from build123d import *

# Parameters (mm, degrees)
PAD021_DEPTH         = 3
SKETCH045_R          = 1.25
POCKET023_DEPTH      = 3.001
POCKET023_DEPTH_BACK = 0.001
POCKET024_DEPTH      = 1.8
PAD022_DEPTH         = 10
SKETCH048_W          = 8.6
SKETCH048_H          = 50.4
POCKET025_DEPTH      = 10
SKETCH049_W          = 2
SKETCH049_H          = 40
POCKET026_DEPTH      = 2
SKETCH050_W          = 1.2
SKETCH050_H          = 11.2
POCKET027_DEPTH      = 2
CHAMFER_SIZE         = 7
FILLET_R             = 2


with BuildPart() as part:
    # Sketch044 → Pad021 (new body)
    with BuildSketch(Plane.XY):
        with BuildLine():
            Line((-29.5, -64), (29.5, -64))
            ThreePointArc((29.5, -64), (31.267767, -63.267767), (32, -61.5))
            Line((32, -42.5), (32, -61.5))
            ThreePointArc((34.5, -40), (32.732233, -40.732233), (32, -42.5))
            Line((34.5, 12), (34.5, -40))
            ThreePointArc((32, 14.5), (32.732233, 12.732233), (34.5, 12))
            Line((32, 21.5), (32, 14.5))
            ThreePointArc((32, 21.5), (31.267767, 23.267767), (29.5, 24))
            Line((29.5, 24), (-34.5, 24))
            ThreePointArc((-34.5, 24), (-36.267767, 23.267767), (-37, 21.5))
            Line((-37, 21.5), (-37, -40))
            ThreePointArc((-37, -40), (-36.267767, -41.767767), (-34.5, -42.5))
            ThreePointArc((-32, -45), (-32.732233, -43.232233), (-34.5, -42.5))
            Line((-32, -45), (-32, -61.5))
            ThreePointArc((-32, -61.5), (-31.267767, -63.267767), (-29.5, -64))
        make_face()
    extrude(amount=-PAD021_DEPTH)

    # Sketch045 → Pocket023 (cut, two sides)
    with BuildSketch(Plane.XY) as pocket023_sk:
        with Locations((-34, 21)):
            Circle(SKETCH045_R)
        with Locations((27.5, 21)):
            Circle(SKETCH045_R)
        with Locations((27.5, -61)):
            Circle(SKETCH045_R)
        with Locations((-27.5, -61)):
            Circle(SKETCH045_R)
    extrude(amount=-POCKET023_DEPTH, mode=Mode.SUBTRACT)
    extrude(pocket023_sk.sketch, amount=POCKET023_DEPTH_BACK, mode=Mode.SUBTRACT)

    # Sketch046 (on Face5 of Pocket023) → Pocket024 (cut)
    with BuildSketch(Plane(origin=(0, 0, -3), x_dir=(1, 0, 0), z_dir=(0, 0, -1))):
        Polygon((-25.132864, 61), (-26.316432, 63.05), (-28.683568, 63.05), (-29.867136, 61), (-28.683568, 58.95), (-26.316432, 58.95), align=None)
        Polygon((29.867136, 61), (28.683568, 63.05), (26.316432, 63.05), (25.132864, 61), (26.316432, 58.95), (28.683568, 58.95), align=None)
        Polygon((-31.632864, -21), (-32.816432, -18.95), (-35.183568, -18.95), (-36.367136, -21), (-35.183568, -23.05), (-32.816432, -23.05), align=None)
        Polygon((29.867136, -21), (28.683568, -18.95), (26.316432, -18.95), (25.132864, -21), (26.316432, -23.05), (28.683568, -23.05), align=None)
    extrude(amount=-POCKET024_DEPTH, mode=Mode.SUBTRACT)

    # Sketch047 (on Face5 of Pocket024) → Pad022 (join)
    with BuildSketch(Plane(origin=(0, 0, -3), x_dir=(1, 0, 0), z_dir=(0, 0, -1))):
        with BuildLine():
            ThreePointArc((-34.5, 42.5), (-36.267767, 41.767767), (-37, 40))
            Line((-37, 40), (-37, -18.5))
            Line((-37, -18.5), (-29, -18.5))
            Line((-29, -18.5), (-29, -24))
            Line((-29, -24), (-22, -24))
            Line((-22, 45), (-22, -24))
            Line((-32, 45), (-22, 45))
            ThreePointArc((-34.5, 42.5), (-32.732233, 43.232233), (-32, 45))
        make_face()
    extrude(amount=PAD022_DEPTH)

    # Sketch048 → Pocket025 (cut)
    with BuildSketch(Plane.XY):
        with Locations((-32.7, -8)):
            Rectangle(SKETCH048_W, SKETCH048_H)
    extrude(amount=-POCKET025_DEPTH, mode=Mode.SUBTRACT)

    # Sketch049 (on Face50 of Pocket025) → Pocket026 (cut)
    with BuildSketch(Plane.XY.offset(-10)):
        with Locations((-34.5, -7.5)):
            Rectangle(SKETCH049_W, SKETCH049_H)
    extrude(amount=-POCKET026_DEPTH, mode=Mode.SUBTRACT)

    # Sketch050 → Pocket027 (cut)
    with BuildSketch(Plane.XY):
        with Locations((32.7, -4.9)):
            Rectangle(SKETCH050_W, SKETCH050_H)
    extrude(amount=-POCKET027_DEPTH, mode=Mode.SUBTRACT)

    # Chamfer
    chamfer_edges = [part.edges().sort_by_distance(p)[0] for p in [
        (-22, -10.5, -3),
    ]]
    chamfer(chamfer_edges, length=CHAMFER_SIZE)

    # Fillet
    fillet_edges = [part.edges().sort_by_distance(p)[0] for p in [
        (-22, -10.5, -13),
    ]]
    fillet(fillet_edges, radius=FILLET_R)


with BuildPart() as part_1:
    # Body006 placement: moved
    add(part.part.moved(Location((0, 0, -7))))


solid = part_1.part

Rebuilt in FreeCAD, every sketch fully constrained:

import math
import FreeCAD as App
import Part
import Sketcher

V = App.Vector
Q = App.Units.Quantity


def edges_at(feature, points):
    """Names of the edges that pass closest to the given points."""
    edges = feature.Shape.Edges
    near = lambda p: min(range(len(edges)), key=lambda i: edges[i].distToShape(Part.Vertex(*p))[0])
    return sorted({f"Edge{near(p) + 1}" for p in points})


def add_polygon(sketch, points):
    """Adds a closed chain of lines whose ends are joined by coincident constraints."""
    first, n = sketch.GeometryCount, len(points)
    for a, b in zip(points, points[1:] + points[:1]):
        sketch.addGeometry(Part.LineSegment(App.Vector(*a, 0), App.Vector(*b, 0)), False)
    for i in range(n):
        sketch.addConstraint(Sketcher.Constraint("Coincident", first + i, 2, first + (i + 1) % n, 1))

doc = App.newDocument("Part")
body = doc.addObject("PartDesign::Body", "Body")

# Sketch on XY plane
sketch1 = doc.addObject("Sketcher::SketchObject", "Sketch")
body.addObject(sketch1)
sketch1.AttachmentSupport = (doc.XY_Plane, [""])
sketch1.MapMode = "FlatFace"
sketch1.addGeometry(Part.LineSegment(V(-29.5, -64, 0), V(29.5, -64, 0)), False)
sketch1.addGeometry(Part.ArcOfCircle(Part.Circle(V(29.5, -61.5, 0), V(0, 0, 1), 2.5), math.radians(-90), math.radians(0)), False)
sketch1.addGeometry(Part.LineSegment(V(32, -61.5, 0), V(32, -42.5, 0)), False)
sketch1.addGeometry(Part.ArcOfCircle(Part.Circle(V(34.5, -42.5, 0), V(0, 0, 1), 2.5), math.radians(90), math.radians(180)), False)
sketch1.addGeometry(Part.LineSegment(V(34.5, -40, 0), V(34.5, 12, 0)), False)
sketch1.addGeometry(Part.ArcOfCircle(Part.Circle(V(34.5, 14.5, 0), V(0, 0, 1), 2.5), math.radians(180), math.radians(270)), False)
sketch1.addGeometry(Part.LineSegment(V(32, 14.5, 0), V(32, 21.5, 0)), False)
sketch1.addGeometry(Part.ArcOfCircle(Part.Circle(V(29.5, 21.5, 0), V(0, 0, 1), 2.5), math.radians(0), math.radians(90)), False)
sketch1.addGeometry(Part.LineSegment(V(29.5, 24, 0), V(-34.5, 24, 0)), False)
sketch1.addGeometry(Part.ArcOfCircle(Part.Circle(V(-34.5, 21.5, 0), V(0, 0, 1), 2.5), math.radians(90), math.radians(180)), False)
sketch1.addGeometry(Part.LineSegment(V(-37, 21.5, 0), V(-37, -40, 0)), False)
sketch1.addGeometry(Part.ArcOfCircle(Part.Circle(V(-34.5, -40, 0), V(0, 0, 1), 2.5), math.radians(180), math.radians(270)), False)
sketch1.addGeometry(Part.ArcOfCircle(Part.Circle(V(-34.5, -45, 0), V(0, 0, 1), 2.5), math.radians(0), math.radians(90)), False)
sketch1.addGeometry(Part.LineSegment(V(-32, -45, 0), V(-32, -61.5, 0)), False)
sketch1.addGeometry(Part.ArcOfCircle(Part.Circle(V(-29.5, -61.5, 0), V(0, 0, 1), 2.5), math.radians(180), math.radians(270)), False)
sketch1.addConstraint(Sketcher.Constraint("Tangent", 0, 2, 1, 1))
sketch1.addConstraint(Sketcher.Constraint("Tangent", 1, 2, 2, 1))
sketch1.addConstraint(Sketcher.Constraint("Tangent", 2, 2, 3, 2))
sketch1.addConstraint(Sketcher.Constraint("Coincident", 3, 1, 4, 1))
sketch1.addConstraint(Sketcher.Constraint("Coincident", 4, 2, 5, 2))
sketch1.addConstraint(Sketcher.Constraint("Tangent", 5, 1, 6, 1))
sketch1.addConstraint(Sketcher.Constraint("Tangent", 6, 2, 7, 1))
sketch1.addConstraint(Sketcher.Constraint("Tangent", 7, 2, 8, 1))
sketch1.addConstraint(Sketcher.Constraint("Tangent", 8, 2, 9, 1))
sketch1.addConstraint(Sketcher.Constraint("Tangent", 9, 2, 10, 1))
sketch1.addConstraint(Sketcher.Constraint("Tangent", 10, 2, 11, 1))
sketch1.addConstraint(Sketcher.Constraint("Tangent", 11, 2, 12, 2))
sketch1.addConstraint(Sketcher.Constraint("Tangent", 12, 1, 13, 1))
sketch1.addConstraint(Sketcher.Constraint("Tangent", 13, 2, 14, 1))
sketch1.addConstraint(Sketcher.Constraint("Tangent", 14, 2, 0, 1))
sketch1.addConstraint(Sketcher.Constraint("Horizontal", 0))
sketch1.addConstraint(Sketcher.Constraint("Vertical", 2))
sketch1.addConstraint(Sketcher.Constraint("Vertical", 4))
sketch1.addConstraint(Sketcher.Constraint("Vertical", 6))
sketch1.addConstraint(Sketcher.Constraint("Horizontal", 8))
sketch1.addConstraint(Sketcher.Constraint("Vertical", 10))
sketch1.addConstraint(Sketcher.Constraint("Vertical", 13))
sketch1.addConstraint(Sketcher.Constraint("Equal", 1, 3))
sketch1.addConstraint(Sketcher.Constraint("Equal", 3, 5))
sketch1.addConstraint(Sketcher.Constraint("Equal", 5, 7))
sketch1.addConstraint(Sketcher.Constraint("Equal", 7, 9))
sketch1.addConstraint(Sketcher.Constraint("Equal", 9, 11))
sketch1.addConstraint(Sketcher.Constraint("Equal", 11, 12))
sketch1.addConstraint(Sketcher.Constraint("Equal", 12, 14))
sketch1.addConstraint(Sketcher.Constraint("Horizontal", 11, 3, 3, 1))
sketch1.addConstraint(Sketcher.Constraint("Vertical", 3, 3, 5, 3))
sketch1.addConstraint(Sketcher.Constraint("Vertical", 11, 3, 12, 3))
sketch1.addConstraint(Sketcher.Constraint("Vertical", 5, 3, 3, 1))
sketch1.addConstraint(Sketcher.Constraint("Radius", 1, 2.5))
sketch1.addConstraint(Sketcher.Constraint("DistanceX", 0, 1, 0, 2, 59.0))
sketch1.addConstraint(Sketcher.Constraint("DistanceY", 2, 1, 2, 2, 19.0))
sketch1.addConstraint(Sketcher.Constraint("DistanceY", 4, 1, 4, 2, 52.0))
sketch1.addConstraint(Sketcher.Constraint("DistanceY", 6, 1, 6, 2, 7.0))
sketch1.addConstraint(Sketcher.Constraint("DistanceY", 11, 3, -1, 1, 40.0))
sketch1.addConstraint(Sketcher.Constraint("DistanceX", -1, 1, 1, 2, 32.0))
pad1 = doc.addObject("PartDesign::Pad", "Pad")
body.addObject(pad1)
pad1.Profile = sketch1
pad1.Length = 3
pad1.Reversed = True

# Sketch on XY plane
sketch2 = doc.addObject("Sketcher::SketchObject", "Sketch001")
body.addObject(sketch2)
sketch2.AttachmentSupport = (doc.XY_Plane, [""])
sketch2.MapMode = "FlatFace"
sketch2.addGeometry(Part.Circle(V(-34, 21, 0), V(0, 0, 1), 1.2), False)
sketch2.addGeometry(Part.Circle(V(27.5, 21, 0), V(0, 0, 1), 1.2), False)
sketch2.addGeometry(Part.Circle(V(27.5, -61, 0), V(0, 0, 1), 1.2), False)
sketch2.addGeometry(Part.Circle(V(-27.5, -61, 0), V(0, 0, 1), 1.2), False)
sketch2.addConstraint(Sketcher.Constraint("Equal", 0, 1))
sketch2.addConstraint(Sketcher.Constraint("Equal", 1, 2))
sketch2.addConstraint(Sketcher.Constraint("Equal", 2, 3))
sketch2.addConstraint(Sketcher.Constraint("Symmetric", 2, 3, 3, 3, -2))
sketch2.addConstraint(Sketcher.Constraint("Horizontal", 0, 3, 1, 3))
sketch2.addConstraint(Sketcher.Constraint("Vertical", 1, 3, 2, 3))
sketch2.addConstraint(Sketcher.Constraint("Diameter", 0, 2.5))
sketch2.addConstraint(Sketcher.Constraint("DistanceX", 0, 3, -1, 1, 34.0))
sketch2.addConstraint(Sketcher.Constraint("DistanceY", -1, 1, 0, 3, 21.0))
sketch2.addConstraint(Sketcher.Constraint("DistanceY", 2, 3, -1, 1, 61.0))
sketch2.addConstraint(Sketcher.Constraint("DistanceX", 3, 3, 2, 3, 55.0))
pocket1 = doc.addObject("PartDesign::Pocket", "Pocket")
body.addObject(pocket1)
pocket1.Profile = sketch2
pocket1.Type = "ThroughAll"
pocket1.Midplane = True

# Sketch on XY plane
sketch3 = doc.addObject("Sketcher::SketchObject", "Sketch002")
body.addObject(sketch3)
sketch3.AttachmentSupport = (doc.XY_Plane, [""])
sketch3.MapMode = "FlatFace"
sketch3.AttachmentOffset = App.Placement(V(0, 0, -3), App.Rotation())
add_polygon(sketch3, [(-25.1, -61), (-26.3, -63), (-28.7, -63), (-29.9, -61), (-28.7, -59), (-26.3, -59)])  # lines 0-5
add_polygon(sketch3, [(29.9, -61), (28.7, -63), (26.3, -63), (25.1, -61), (26.3, -59), (28.7, -59)])  # lines 6-11
add_polygon(sketch3, [(-31.6, 21), (-32.8, 18.9), (-35.2, 18.9), (-36.4, 21), (-35.2, 23.1), (-32.8, 23.1)])  # lines 12-17
add_polygon(sketch3, [(29.9, 21), (28.7, 18.9), (26.3, 18.9), (25.1, 21), (26.3, 23.1), (28.7, 23.1)])  # lines 18-23
sketch3.addConstraint(Sketcher.Constraint("Horizontal", 1))
sketch3.addConstraint(Sketcher.Constraint("Horizontal", 4))
sketch3.addConstraint(Sketcher.Constraint("Horizontal", 7))
sketch3.addConstraint(Sketcher.Constraint("Horizontal", 10))
sketch3.addConstraint(Sketcher.Constraint("Horizontal", 13))
sketch3.addConstraint(Sketcher.Constraint("Horizontal", 16))
sketch3.addConstraint(Sketcher.Constraint("Horizontal", 19))
sketch3.addConstraint(Sketcher.Constraint("Horizontal", 22))
sketch3.addConstraint(Sketcher.Constraint("Symmetric", 1, 2, 6, 2, -2))
sketch3.addConstraint(Sketcher.Constraint("Symmetric", 5, 2, 8, 2, -2))
sketch3.addConstraint(Sketcher.Constraint("Symmetric", 4, 2, 9, 2, -2))
sketch3.addConstraint(Sketcher.Constraint("Symmetric", 2, 2, 11, 2, -2))
sketch3.addConstraint(Sketcher.Constraint("Parallel", 0, 3))
sketch3.addConstraint(Sketcher.Constraint("Parallel", 2, 5))
sketch3.addConstraint(Sketcher.Constraint("Parallel", 3, 6))
sketch3.addConstraint(Sketcher.Constraint("Parallel", 5, 8))
sketch3.addConstraint(Sketcher.Constraint("Parallel", 8, 11))
sketch3.addConstraint(Sketcher.Constraint("Parallel", 9, 12))
sketch3.addConstraint(Sketcher.Constraint("Parallel", 11, 14))
sketch3.addConstraint(Sketcher.Constraint("Parallel", 12, 15))
sketch3.addConstraint(Sketcher.Constraint("Parallel", 14, 17))
sketch3.addConstraint(Sketcher.Constraint("Parallel", 15, 18))
sketch3.addConstraint(Sketcher.Constraint("Parallel", 17, 20))
sketch3.addConstraint(Sketcher.Constraint("Parallel", 18, 21))
sketch3.addConstraint(Sketcher.Constraint("Parallel", 20, 23))
sketch3.addConstraint(Sketcher.Constraint("Horizontal", 2, 2, 5, 2))
sketch3.addConstraint(Sketcher.Constraint("Horizontal", 14, 2, 17, 2))
sketch3.addConstraint(Sketcher.Constraint("Horizontal", 13, 2, 18, 2))
sketch3.addConstraint(Sketcher.Constraint("Horizontal", 17, 2, 20, 2))
sketch3.addConstraint(Sketcher.Constraint("Horizontal", 16, 2, 21, 2))
sketch3.addConstraint(Sketcher.Constraint("Horizontal", 20, 2, 23, 2))
sketch3.addConstraint(Sketcher.Constraint("Vertical", 1, 2, 3, 2))
sketch3.addConstraint(Sketcher.Constraint("Vertical", 13, 2, 15, 2))
sketch3.addConstraint(Sketcher.Constraint("Vertical", 10, 2, 18, 2))
sketch3.addConstraint(Sketcher.Constraint("Vertical", 9, 2, 19, 2))
sketch3.addConstraint(Sketcher.Constraint("Vertical", 8, 2, 20, 2))
sketch3.addConstraint(Sketcher.Constraint("Equal", 10, 13))
sketch3.addConstraint(Sketcher.Constraint("Angle", 0, Q("-119.999999 deg")))
sketch3.addConstraint(Sketcher.Constraint("DistanceY", 2, 2, -1, 1, 61.0))
sketch3.addConstraint(Sketcher.Constraint("DistanceY", -1, 1, 14, 2, 21.0))
sketch3.addConstraint(Sketcher.Constraint("DistanceX", 0, 2, 6, 2, 55.0))
sketch3.addConstraint(Sketcher.Constraint("DistanceY", 1, 2, 3, 2, 4.1))
sketch3.addConstraint(Sketcher.Constraint("DistanceX", 12, 2, 4, 2, 6.5))
sketch3.addConstraint(Sketcher.Constraint("DistanceX", 1, 2, 1, 1, 2.367136))
pocket2 = doc.addObject("PartDesign::Pocket", "Pocket001")
body.addObject(pocket2)
pocket2.Profile = sketch3
pocket2.Length = 1.8
pocket2.Reversed = True

# Sketch on XY plane
sketch4 = doc.addObject("Sketcher::SketchObject", "Sketch003")
body.addObject(sketch4)
sketch4.AttachmentSupport = (doc.XY_Plane, [""])
sketch4.MapMode = "FlatFace"
sketch4.AttachmentOffset = App.Placement(V(0, 0, -3), App.Rotation())
sketch4.addGeometry(Part.ArcOfCircle(Part.Circle(V(-34.5, -40, 0), V(0, 0, 1), 2.5), math.radians(180), math.radians(270)), False)
sketch4.addGeometry(Part.LineSegment(V(-37, -40, 0), V(-37, 18.5, 0)), False)
sketch4.addGeometry(Part.LineSegment(V(-37, 18.5, 0), V(-29, 18.5, 0)), False)
sketch4.addGeometry(Part.LineSegment(V(-29, 18.5, 0), V(-29, 24, 0)), False)
sketch4.addGeometry(Part.LineSegment(V(-29, 24, 0), V(-22, 24, 0)), False)
sketch4.addGeometry(Part.LineSegment(V(-22, 24, 0), V(-22, -45, 0)), False)
sketch4.addGeometry(Part.LineSegment(V(-22, -45, 0), V(-32, -45, 0)), False)
sketch4.addGeometry(Part.ArcOfCircle(Part.Circle(V(-34.5, -45, 0), V(0, 0, 1), 2.5), math.radians(0), math.radians(90)), False)
sketch4.addConstraint(Sketcher.Constraint("Tangent", 0, 1, 1, 1))
sketch4.addConstraint(Sketcher.Constraint("Coincident", 1, 2, 2, 1))
sketch4.addConstraint(Sketcher.Constraint("Coincident", 2, 2, 3, 1))
sketch4.addConstraint(Sketcher.Constraint("Coincident", 3, 2, 4, 1))
sketch4.addConstraint(Sketcher.Constraint("Coincident", 4, 2, 5, 1))
sketch4.addConstraint(Sketcher.Constraint("Coincident", 5, 2, 6, 1))
sketch4.addConstraint(Sketcher.Constraint("Coincident", 6, 2, 7, 1))
sketch4.addConstraint(Sketcher.Constraint("Tangent", 7, 2, 0, 2))
sketch4.addConstraint(Sketcher.Constraint("Vertical", 1))
sketch4.addConstraint(Sketcher.Constraint("Horizontal", 2))
sketch4.addConstraint(Sketcher.Constraint("Vertical", 3))
sketch4.addConstraint(Sketcher.Constraint("Horizontal", 4))
sketch4.addConstraint(Sketcher.Constraint("Vertical", 5))
sketch4.addConstraint(Sketcher.Constraint("Horizontal", 6))
sketch4.addConstraint(Sketcher.Constraint("Equal", 0, 7))
sketch4.addConstraint(Sketcher.Constraint("Horizontal", 7, 3, 5, 2))
sketch4.addConstraint(Sketcher.Constraint("Vertical", 0, 3, 7, 3))
sketch4.addConstraint(Sketcher.Constraint("Radius", 0, 2.5))
sketch4.addConstraint(Sketcher.Constraint("DistanceX", 2, 1, 2, 2, 8.0))
sketch4.addConstraint(Sketcher.Constraint("DistanceX", 4, 1, 4, 2, 7.0))
sketch4.addConstraint(Sketcher.Constraint("DistanceY", 5, 2, 5, 1, 69.0))
sketch4.addConstraint(Sketcher.Constraint("DistanceY", 1, 1, 1, 2, 58.5))
sketch4.addConstraint(Sketcher.Constraint("DistanceY", 0, 3, -1, 1, 40.0))
sketch4.addConstraint(Sketcher.Constraint("DistanceX", 0, 1, -1, 1, 37.0))
pad2 = doc.addObject("PartDesign::Pad", "Pad001")
body.addObject(pad2)
pad2.Profile = sketch4
pad2.Length = 10
pad2.Reversed = True

# Sketch on XY plane
sketch5 = doc.addObject("Sketcher::SketchObject", "Sketch004")
body.addObject(sketch5)
sketch5.AttachmentSupport = (doc.XY_Plane, [""])
sketch5.MapMode = "FlatFace"
add_polygon(sketch5, [(-37, 17), (-37, -33), (-28, -33), (-28, 17)])  # lines 0-3
sketch5.addConstraint(Sketcher.Constraint("Vertical", 0))
sketch5.addConstraint(Sketcher.Constraint("Horizontal", 1))
sketch5.addConstraint(Sketcher.Constraint("Vertical", 2))
sketch5.addConstraint(Sketcher.Constraint("Horizontal", 3))
sketch5.addConstraint(Sketcher.Constraint("DistanceX", 1, 1, 1, 2, 8.6))
sketch5.addConstraint(Sketcher.Constraint("DistanceY", 0, 2, 0, 1, 50.4))
sketch5.addConstraint(Sketcher.Constraint("DistanceX", 0, 2, -1, 1, 37.0))
sketch5.addConstraint(Sketcher.Constraint("DistanceY", 0, 2, -1, 1, 33.2))
pocket3 = doc.addObject("PartDesign::Pocket", "Pocket002")
body.addObject(pocket3)
pocket3.Profile = sketch5
pocket3.Length = 10

# Sketch on XY plane
sketch6 = doc.addObject("Sketcher::SketchObject", "Sketch005")
body.addObject(sketch6)
sketch6.AttachmentSupport = (doc.XY_Plane, [""])
sketch6.MapMode = "FlatFace"
sketch6.AttachmentOffset = App.Placement(V(0, 0, -10), App.Rotation())
add_polygon(sketch6, [(-35.5, 12.5), (-35.5, -27.5), (-33.5, -27.5), (-33.5, 12.5)])  # lines 0-3
sketch6.addConstraint(Sketcher.Constraint("Vertical", 0))
sketch6.addConstraint(Sketcher.Constraint("Horizontal", 1))
sketch6.addConstraint(Sketcher.Constraint("Vertical", 2))
sketch6.addConstraint(Sketcher.Constraint("Horizontal", 3))
sketch6.addConstraint(Sketcher.Constraint("DistanceX", 1, 1, 1, 2, 2.0))
sketch6.addConstraint(Sketcher.Constraint("DistanceY", 0, 2, 0, 1, 40.0))
sketch6.addConstraint(Sketcher.Constraint("DistanceX", 0, 2, -1, 1, 35.5))
sketch6.addConstraint(Sketcher.Constraint("DistanceY", 0, 2, -1, 1, 27.5))
pocket4 = doc.addObject("PartDesign::Pocket", "Pocket003")
body.addObject(pocket4)
pocket4.Profile = sketch6
pocket4.Length = 2

# Sketch on XY plane
sketch7 = doc.addObject("Sketcher::SketchObject", "Sketch006")
body.addObject(sketch7)
sketch7.AttachmentSupport = (doc.XY_Plane, [""])
sketch7.MapMode = "FlatFace"
add_polygon(sketch7, [(32.1, 0.7), (32.1, -10.5), (33.3, -10.5), (33.3, 0.7)])  # lines 0-3
sketch7.addConstraint(Sketcher.Constraint("Vertical", 0))
sketch7.addConstraint(Sketcher.Constraint("Horizontal", 1))
sketch7.addConstraint(Sketcher.Constraint("Vertical", 2))
sketch7.addConstraint(Sketcher.Constraint("Horizontal", 3))
sketch7.addConstraint(Sketcher.Constraint("DistanceX", 1, 1, 1, 2, 1.2))
sketch7.addConstraint(Sketcher.Constraint("DistanceY", 0, 2, 0, 1, 11.2))
sketch7.addConstraint(Sketcher.Constraint("DistanceX", -1, 1, 0, 2, 32.1))
sketch7.addConstraint(Sketcher.Constraint("DistanceY", 0, 2, -1, 1, 10.5))
pocket5 = doc.addObject("PartDesign::Pocket", "Pocket004")
body.addObject(pocket5)
pocket5.Profile = sketch7
pocket5.Length = 2
doc.recompute()

chamfer = doc.addObject("PartDesign::Chamfer", "Chamfer")
body.addObject(chamfer)
chamfer.Base = (pocket5, edges_at(pocket5, [(-22, -10.5, -3)]))
chamfer.Size = 7
doc.recompute()

fillet = doc.addObject("PartDesign::Fillet", "Fillet")
body.addObject(fillet)
fillet.Base = (chamfer, edges_at(chamfer, [(-22, -10.5, -13)]))
fillet.Radius = 2
body2 = doc.addObject("PartDesign::Body", "Body001")
doc.recompute()

body.Placement = App.Placement(V(0, 0, -7), App.Rotation(V(0, 0, 1), 0))
boolean = doc.addObject("PartDesign::Boolean", "Boolean")
body2.addObject(boolean)
boolean.Type = "Fuse"
boolean.addObjects([body])

doc.recompute()
